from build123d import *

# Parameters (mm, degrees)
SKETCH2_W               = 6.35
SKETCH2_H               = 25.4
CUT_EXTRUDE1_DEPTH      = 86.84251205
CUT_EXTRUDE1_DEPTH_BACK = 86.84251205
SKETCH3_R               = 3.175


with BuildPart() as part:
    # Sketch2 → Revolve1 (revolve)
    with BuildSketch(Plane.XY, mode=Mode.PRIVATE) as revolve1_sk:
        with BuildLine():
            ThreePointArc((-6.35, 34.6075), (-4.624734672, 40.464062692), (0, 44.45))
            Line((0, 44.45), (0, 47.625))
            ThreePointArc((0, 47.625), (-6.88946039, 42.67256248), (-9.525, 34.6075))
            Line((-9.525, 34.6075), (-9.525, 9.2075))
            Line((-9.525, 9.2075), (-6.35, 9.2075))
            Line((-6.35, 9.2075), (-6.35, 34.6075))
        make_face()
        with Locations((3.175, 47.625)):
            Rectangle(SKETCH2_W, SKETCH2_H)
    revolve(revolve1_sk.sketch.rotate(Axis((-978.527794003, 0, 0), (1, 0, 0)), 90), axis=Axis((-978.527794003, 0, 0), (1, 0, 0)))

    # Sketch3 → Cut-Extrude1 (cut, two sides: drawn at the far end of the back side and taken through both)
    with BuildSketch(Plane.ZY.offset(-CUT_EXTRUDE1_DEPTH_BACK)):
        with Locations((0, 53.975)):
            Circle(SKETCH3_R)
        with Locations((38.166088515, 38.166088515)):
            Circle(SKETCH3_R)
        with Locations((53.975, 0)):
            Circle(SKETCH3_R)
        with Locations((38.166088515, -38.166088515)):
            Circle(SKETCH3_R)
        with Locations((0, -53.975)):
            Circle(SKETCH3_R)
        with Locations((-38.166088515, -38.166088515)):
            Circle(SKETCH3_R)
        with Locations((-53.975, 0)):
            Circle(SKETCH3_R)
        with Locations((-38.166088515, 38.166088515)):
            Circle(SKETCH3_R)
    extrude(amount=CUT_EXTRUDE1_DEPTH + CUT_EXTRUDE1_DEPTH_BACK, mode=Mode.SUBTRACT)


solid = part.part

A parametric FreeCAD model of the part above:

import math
import FreeCAD as App
import Part
import Sketcher
Q = App.Units.Quantity

doc = App.newDocument("Part")
params = doc.addObject("Spreadsheet::Sheet", "Params")
for row, (alias, value) in enumerate([
    ("sketch1_height", "1 in"),
    ("sketch1_height2", "0.5 in"),
    ("sketch1_width", "0.25 in"),
    ("sketch1_width2", "0.125 in"),
    ("sketch1_height3", "0.375 in"),
    ("revolution_angle", "360 deg"),
    ("sketch2_diameter", "0.25 in"),
], start=1):
    params.set(f"A{row}", alias)
    params.set(f"B{row}", "=" + value)
    params.setAlias(f"B{row}", alias)

body = doc.addObject("PartDesign::Body", "Body")

sketch1 = body.newObject("Sketcher::SketchObject", "Sketch")
sketch1.AttachmentSupport = (doc.getObject("XY_Plane"), [""])
sketch1.MapMode = "FlatFace"
sketch1.addGeometry([
    Part.ArcOfCircle(Part.Circle(App.Vector(4.5, 34.6, 0), App.Vector(0, 0, 1), 10.8), math.radians(114), math.radians(180)),
    Part.LineSegment(App.Vector(0, 44.5, 0), App.Vector(0, 34.9, 0)),
    Part.LineSegment(App.Vector(0, 34.9, 0), App.Vector(6.3, 34.9, 0)),
    Part.LineSegment(App.Vector(6.3, 34.9, 0), App.Vector(6.3, 60.3, 0)),
    Part.LineSegment(App.Vector(6.3, 60.3, 0), App.Vector(0, 60.3, 0)),
    Part.LineSegment(App.Vector(0, 60.3, 0), App.Vector(0, 47.6, 0)),
    Part.ArcOfCircle(Part.Circle(App.Vector(4.1, 34.6, 0), App.Vector(0, 0, 1), 13.7), math.radians(108), math.radians(180)),
    Part.LineSegment(App.Vector(-9.5, 34.6, 0), App.Vector(-9.5, 9.2, 0)),
    Part.LineSegment(App.Vector(-9.5, 9.2, 0), App.Vector(-6.3, 9.2, 0)),
    Part.LineSegment(App.Vector(-6.3, 9.2, 0), App.Vector(-6.3, 34.6, 0)),
], False)
sketch1.addConstraint([
    Sketcher.Constraint("Coincident", 0, 1, 1, 1),
    Sketcher.Constraint("Coincident", 1, 2, 2, 1),
    Sketcher.Constraint("Coincident", 2, 2, 3, 1),
    Sketcher.Constraint("Coincident", 3, 2, 4, 1),
    Sketcher.Constraint("Coincident", 4, 2, 5, 1),
    Sketcher.Constraint("Coincident", 5, 2, 6, 1),
    Sketcher.Constraint("Tangent", 6, 2, 7, 1),
    Sketcher.Constraint("Coincident", 7, 2, 8, 1),
    Sketcher.Constraint("Coincident", 8, 2, 9, 1),
    Sketcher.Constraint("Tangent", 9, 2, 0, 2),
    Sketcher.Constraint("Vertical", 1),
    Sketcher.Constraint("Horizontal", 2),
    Sketcher.Constraint("Vertical", 3),
    Sketcher.Constraint("Horizontal", 4),
    Sketcher.Constraint("Vertical", 5),
    Sketcher.Constraint("Vertical", 7),
    Sketcher.Constraint("Horizontal", 8),
    Sketcher.Constraint("Vertical", 9),
    Sketcher.Constraint("PointOnObject", 0, 1, -2),
    Sketcher.Constraint("PointOnObject", 4, 2, -2),
    Sketcher.Constraint("Horizontal", 0, 3, 6, 3),
    Sketcher.Constraint("Equal", 3, 7),
    Sketcher.Constraint("DistanceY", 3, 1, 3, 2, Q("1 in")),
    Sketcher.Constraint("DistanceY", 5, 2, 5, 1, Q("0.5 in")),
    Sketcher.Constraint("DistanceX", 2, 1, 2, 2, Q("0.25 in")),
    Sketcher.Constraint("DistanceX", 8, 1, 8, 2, Q("0.125 in")),
    Sketcher.Constraint("DistanceY", 1, 2, 1, 1, Q("0.375 in")),
    Sketcher.Constraint("DistanceY", -1, 1, 0, 1, Q("1.75 in")),
    Sketcher.Constraint("DistanceX", 8, 2, -1, 1, Q("0.25 in")),
    Sketcher.Constraint("Radius", 6, 13.657792),
])
sketch1.setExpression("Constraints[22]", "Params.sketch1_height")
sketch1.setExpression("Constraints[23]", "Params.sketch1_height2")
sketch1.setExpression("Constraints[24]", "Params.sketch1_width")
sketch1.setExpression("Constraints[25]", "Params.sketch1_width2")
sketch1.setExpression("Constraints[26]", "Params.sketch1_height3")
revolution = body.newObject("PartDesign::Revolution", "Revolution")
revolution.Profile = sketch1
revolution.ReferenceAxis = (sketch1, ["H_Axis"])
revolution.setExpression("Angle", "Params.revolution_angle")

sketch2 = body.newObject("Sketcher::SketchObject", "Sketch001")
sketch2.AttachmentSupport = (doc.getObject("YZ_Plane"), [""])
sketch2.MapMode = "FlatFace"
sketch2.addGeometry([
    Part.Circle(App.Vector(54, 0, 0), App.Vector(0, 0, 1), 3.2),
    Part.Circle(App.Vector(38.2, 38.2, 0), App.Vector(0, 0, 1), 3.2),
    Part.Circle(App.Vector(0, 54, 0), App.Vector(0, 0, 1), 3.2),
    Part.Circle(App.Vector(-38.2, 38.2, 0), App.Vector(0, 0, 1), 3.2),
    Part.Circle(App.Vector(-54, 0, 0), App.Vector(0, 0, 1), 3.2),
    Part.Circle(App.Vector(-38.2, -38.2, 0), App.Vector(0, 0, 1), 3.2),
    Part.Circle(App.Vector(0, -54, 0), App.Vector(0, 0, 1), 3.2),
    Part.Circle(App.Vector(38.2, -38.2, 0), App.Vector(0, 0, 1), 3.2),
], False)
sketch2.addConstraint([
    Sketcher.Constraint("Equal", 0, 1),
    Sketcher.Constraint("Equal", 1, 2),
    Sketcher.Constraint("Equal", 2, 3),
    Sketcher.Constraint("Equal", 3, 4),
    Sketcher.Constraint("Equal", 4, 5),
    Sketcher.Constraint("Equal", 5, 6),
    Sketcher.Constraint("Equal", 6, 7),
    Sketcher.Constraint("Symmetric", 0, 3, 4, 3, -1, 1),
    Sketcher.Constraint("Symmetric", 1, 3, 5, 3, -1, 1),
    Sketcher.Constraint("Symmetric", 2, 3, 6, 3, -1, 1),
    Sketcher.Constraint("Symmetric", 3, 3, 7, 3, -1, 1),
    Sketcher.Constraint("Symmetric", 1, 3, 3, 3, -2),
    Sketcher.Constraint("PointOnObject", 0, 3, -1),
    Sketcher.Constraint("PointOnObject", 2, 3, -2),
    Sketcher.Constraint("Diameter", 0, Q("0.25 in")),
    Sketcher.Constraint("DistanceX", 4, 3, 0, 3, Q("4.25 in")),
    Sketcher.Constraint("DistanceY", -1, 1, 2, 3, Q("2.125 in")),
    Sketcher.Constraint("DistanceX", -1, 1, 1, 3, 38.166089),
    Sketcher.Constraint("DistanceY", -1, 1, 1, 3, 38.166089),
])
sketch2.setExpression("Constraints[14]", "Params.sketch2_diameter")
pocket1 = body.newObject("PartDesign::Pocket", "Pocket")
pocket1.Profile = sketch2
pocket1.Type = "ThroughAll"
pocket1.Midplane = True

doc.recompute()
